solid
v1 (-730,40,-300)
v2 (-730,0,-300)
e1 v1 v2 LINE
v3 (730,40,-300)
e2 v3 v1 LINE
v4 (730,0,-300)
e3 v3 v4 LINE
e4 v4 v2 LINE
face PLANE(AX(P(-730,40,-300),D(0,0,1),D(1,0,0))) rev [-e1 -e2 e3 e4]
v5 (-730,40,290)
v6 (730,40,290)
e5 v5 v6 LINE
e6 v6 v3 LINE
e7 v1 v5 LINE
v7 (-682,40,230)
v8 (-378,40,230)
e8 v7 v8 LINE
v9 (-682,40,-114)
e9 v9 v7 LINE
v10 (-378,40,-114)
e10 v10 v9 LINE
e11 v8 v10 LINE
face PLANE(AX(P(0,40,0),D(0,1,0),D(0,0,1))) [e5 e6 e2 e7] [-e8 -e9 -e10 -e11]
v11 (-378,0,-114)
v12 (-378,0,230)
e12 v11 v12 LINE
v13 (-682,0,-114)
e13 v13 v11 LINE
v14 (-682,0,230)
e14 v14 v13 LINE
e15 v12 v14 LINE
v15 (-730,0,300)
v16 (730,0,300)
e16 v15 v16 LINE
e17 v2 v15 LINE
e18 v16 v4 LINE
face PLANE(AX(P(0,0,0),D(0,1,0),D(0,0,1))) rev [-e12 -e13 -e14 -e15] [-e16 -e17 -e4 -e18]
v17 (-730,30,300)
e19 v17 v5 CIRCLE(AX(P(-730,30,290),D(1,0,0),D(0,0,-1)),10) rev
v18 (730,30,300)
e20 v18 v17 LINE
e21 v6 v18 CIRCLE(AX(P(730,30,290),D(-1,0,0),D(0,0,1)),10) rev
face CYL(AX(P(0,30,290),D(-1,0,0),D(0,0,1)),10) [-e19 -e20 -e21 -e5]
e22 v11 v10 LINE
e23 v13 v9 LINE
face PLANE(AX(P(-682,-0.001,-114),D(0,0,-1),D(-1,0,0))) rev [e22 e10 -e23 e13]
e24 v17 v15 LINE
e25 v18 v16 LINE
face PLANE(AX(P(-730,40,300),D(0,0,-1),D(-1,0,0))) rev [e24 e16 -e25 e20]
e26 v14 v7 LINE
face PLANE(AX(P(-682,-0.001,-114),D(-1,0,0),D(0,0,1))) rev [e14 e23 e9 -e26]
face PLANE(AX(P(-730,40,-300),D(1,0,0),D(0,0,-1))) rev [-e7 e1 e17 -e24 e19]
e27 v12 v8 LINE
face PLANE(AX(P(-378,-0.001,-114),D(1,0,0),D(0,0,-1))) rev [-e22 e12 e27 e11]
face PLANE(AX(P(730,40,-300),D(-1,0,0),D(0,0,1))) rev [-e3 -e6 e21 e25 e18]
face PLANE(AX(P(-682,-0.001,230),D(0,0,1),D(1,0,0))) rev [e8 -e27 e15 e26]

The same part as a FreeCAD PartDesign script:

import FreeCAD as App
import Part
import Sketcher

V = App.Vector


def edges_at(feature, points):
    """Names of the edges that pass closest to the given points."""
    edges = feature.Shape.Edges
    near = lambda p: min(range(len(edges)), key=lambda i: edges[i].distToShape(Part.Vertex(*p))[0])
    return sorted({f"Edge{near(p) + 1}" for p in points})

doc = App.newDocument("Part")
body = doc.addObject("PartDesign::Body", "Body")

sketch1 = body.newObject("Sketcher::SketchObject", "Sketch")
sketch1.AttachmentSupport = (doc.getObject("XZ_Plane"), [""])
sketch1.MapMode = "FlatFace"
sketch1.addGeometry([
    Part.LineSegment(V(-730, -300, 0), V(-730, 300, 0)),
    Part.LineSegment(V(-730, 300, 0), V(730, 300, 0)),
    Part.LineSegment(V(730, 300, 0), V(730, -300, 0)),
    Part.LineSegment(V(730, -300, 0), V(-730, -300, 0)),
], False)
sketch1.addConstraint([
    Sketcher.Constraint("Coincident", 0, 2, 1, 1),
    Sketcher.Constraint("Coincident", 1, 2, 2, 1),
    Sketcher.Constraint("Coincident", 2, 2, 3, 1),
    Sketcher.Constraint("Coincident", 3, 2, 0, 1),
    Sketcher.Constraint("Vertical", 0),
    Sketcher.Constraint("Horizontal", 1),
    Sketcher.Constraint("Vertical", 2),
    Sketcher.Constraint("Horizontal", 3),
    Sketcher.Constraint("Symmetric", 0, 2, 2, 2, -1, 1),
    Sketcher.Constraint("DistanceX", 1, 1, 1, 2, 1460.0),
    Sketcher.Constraint("DistanceY", 0, 1, 0, 2, 600.0),
])
pad1 = body.newObject("PartDesign::Pad", "Pad")
pad1.Profile = sketch1
pad1.Length = 40
pad1.Reversed = True
doc.recompute()

fillet = body.newObject("PartDesign::Fillet", "Fillet")
fillet.Base = (pad1, edges_at(pad1, [(0, 40, 300)]))
fillet.Radius = 10

sketch2 = body.newObject("Sketcher::SketchObject", "Sketch001")
sketch2.AttachmentSupport = (doc.getObject("XZ_Plane"), [""])
sketch2.MapMode = "FlatFace"
sketch2.AttachmentOffset = App.Placement(V(0, 0, -40), App.Rotation())
sketch2.addGeometry([
    Part.LineSegment(V(-682, -114, 0), V(-682, 230, 0)),
    Part.LineSegment(V(-682, 230, 0), V(-378, 230, 0)),
    Part.LineSegment(V(-378, 230, 0), V(-378, -114, 0)),
    Part.LineSegment(V(-378, -114, 0), V(-682, -114, 0)),
], False)
sketch2.addConstraint([
    Sketcher.Constraint("Coincident", 0, 2, 1, 1),
    Sketcher.Constraint("Coincident", 1, 2, 2, 1),
    Sketcher.Constraint("Coincident", 2, 2, 3, 1),
    Sketcher.Constraint("Coincident", 3, 2, 0, 1),
    Sketcher.Constraint("Vertical", 0),
    Sketcher.Constraint("Horizontal", 1),
    Sketcher.Constraint("Vertical", 2),
    Sketcher.Constraint("Horizontal", 3),
    Sketcher.Constraint("DistanceX", 1, 1, 1, 2, 304.0),
    Sketcher.Constraint("DistanceY", 0, 1, 0, 2, 344.0),
    Sketcher.Constraint("DistanceX", 0, 2, -1, 1, 682.0),
    Sketcher.Constraint("DistanceY", -1, 1, 0, 2, 230.0),
])
pocket1 = body.newObject("PartDesign::Pocket", "Pocket")
pocket1.Profile = sketch2
pocket1.Type = "UpToFirst"
pocket1.Reversed = True

doc.recompute()
